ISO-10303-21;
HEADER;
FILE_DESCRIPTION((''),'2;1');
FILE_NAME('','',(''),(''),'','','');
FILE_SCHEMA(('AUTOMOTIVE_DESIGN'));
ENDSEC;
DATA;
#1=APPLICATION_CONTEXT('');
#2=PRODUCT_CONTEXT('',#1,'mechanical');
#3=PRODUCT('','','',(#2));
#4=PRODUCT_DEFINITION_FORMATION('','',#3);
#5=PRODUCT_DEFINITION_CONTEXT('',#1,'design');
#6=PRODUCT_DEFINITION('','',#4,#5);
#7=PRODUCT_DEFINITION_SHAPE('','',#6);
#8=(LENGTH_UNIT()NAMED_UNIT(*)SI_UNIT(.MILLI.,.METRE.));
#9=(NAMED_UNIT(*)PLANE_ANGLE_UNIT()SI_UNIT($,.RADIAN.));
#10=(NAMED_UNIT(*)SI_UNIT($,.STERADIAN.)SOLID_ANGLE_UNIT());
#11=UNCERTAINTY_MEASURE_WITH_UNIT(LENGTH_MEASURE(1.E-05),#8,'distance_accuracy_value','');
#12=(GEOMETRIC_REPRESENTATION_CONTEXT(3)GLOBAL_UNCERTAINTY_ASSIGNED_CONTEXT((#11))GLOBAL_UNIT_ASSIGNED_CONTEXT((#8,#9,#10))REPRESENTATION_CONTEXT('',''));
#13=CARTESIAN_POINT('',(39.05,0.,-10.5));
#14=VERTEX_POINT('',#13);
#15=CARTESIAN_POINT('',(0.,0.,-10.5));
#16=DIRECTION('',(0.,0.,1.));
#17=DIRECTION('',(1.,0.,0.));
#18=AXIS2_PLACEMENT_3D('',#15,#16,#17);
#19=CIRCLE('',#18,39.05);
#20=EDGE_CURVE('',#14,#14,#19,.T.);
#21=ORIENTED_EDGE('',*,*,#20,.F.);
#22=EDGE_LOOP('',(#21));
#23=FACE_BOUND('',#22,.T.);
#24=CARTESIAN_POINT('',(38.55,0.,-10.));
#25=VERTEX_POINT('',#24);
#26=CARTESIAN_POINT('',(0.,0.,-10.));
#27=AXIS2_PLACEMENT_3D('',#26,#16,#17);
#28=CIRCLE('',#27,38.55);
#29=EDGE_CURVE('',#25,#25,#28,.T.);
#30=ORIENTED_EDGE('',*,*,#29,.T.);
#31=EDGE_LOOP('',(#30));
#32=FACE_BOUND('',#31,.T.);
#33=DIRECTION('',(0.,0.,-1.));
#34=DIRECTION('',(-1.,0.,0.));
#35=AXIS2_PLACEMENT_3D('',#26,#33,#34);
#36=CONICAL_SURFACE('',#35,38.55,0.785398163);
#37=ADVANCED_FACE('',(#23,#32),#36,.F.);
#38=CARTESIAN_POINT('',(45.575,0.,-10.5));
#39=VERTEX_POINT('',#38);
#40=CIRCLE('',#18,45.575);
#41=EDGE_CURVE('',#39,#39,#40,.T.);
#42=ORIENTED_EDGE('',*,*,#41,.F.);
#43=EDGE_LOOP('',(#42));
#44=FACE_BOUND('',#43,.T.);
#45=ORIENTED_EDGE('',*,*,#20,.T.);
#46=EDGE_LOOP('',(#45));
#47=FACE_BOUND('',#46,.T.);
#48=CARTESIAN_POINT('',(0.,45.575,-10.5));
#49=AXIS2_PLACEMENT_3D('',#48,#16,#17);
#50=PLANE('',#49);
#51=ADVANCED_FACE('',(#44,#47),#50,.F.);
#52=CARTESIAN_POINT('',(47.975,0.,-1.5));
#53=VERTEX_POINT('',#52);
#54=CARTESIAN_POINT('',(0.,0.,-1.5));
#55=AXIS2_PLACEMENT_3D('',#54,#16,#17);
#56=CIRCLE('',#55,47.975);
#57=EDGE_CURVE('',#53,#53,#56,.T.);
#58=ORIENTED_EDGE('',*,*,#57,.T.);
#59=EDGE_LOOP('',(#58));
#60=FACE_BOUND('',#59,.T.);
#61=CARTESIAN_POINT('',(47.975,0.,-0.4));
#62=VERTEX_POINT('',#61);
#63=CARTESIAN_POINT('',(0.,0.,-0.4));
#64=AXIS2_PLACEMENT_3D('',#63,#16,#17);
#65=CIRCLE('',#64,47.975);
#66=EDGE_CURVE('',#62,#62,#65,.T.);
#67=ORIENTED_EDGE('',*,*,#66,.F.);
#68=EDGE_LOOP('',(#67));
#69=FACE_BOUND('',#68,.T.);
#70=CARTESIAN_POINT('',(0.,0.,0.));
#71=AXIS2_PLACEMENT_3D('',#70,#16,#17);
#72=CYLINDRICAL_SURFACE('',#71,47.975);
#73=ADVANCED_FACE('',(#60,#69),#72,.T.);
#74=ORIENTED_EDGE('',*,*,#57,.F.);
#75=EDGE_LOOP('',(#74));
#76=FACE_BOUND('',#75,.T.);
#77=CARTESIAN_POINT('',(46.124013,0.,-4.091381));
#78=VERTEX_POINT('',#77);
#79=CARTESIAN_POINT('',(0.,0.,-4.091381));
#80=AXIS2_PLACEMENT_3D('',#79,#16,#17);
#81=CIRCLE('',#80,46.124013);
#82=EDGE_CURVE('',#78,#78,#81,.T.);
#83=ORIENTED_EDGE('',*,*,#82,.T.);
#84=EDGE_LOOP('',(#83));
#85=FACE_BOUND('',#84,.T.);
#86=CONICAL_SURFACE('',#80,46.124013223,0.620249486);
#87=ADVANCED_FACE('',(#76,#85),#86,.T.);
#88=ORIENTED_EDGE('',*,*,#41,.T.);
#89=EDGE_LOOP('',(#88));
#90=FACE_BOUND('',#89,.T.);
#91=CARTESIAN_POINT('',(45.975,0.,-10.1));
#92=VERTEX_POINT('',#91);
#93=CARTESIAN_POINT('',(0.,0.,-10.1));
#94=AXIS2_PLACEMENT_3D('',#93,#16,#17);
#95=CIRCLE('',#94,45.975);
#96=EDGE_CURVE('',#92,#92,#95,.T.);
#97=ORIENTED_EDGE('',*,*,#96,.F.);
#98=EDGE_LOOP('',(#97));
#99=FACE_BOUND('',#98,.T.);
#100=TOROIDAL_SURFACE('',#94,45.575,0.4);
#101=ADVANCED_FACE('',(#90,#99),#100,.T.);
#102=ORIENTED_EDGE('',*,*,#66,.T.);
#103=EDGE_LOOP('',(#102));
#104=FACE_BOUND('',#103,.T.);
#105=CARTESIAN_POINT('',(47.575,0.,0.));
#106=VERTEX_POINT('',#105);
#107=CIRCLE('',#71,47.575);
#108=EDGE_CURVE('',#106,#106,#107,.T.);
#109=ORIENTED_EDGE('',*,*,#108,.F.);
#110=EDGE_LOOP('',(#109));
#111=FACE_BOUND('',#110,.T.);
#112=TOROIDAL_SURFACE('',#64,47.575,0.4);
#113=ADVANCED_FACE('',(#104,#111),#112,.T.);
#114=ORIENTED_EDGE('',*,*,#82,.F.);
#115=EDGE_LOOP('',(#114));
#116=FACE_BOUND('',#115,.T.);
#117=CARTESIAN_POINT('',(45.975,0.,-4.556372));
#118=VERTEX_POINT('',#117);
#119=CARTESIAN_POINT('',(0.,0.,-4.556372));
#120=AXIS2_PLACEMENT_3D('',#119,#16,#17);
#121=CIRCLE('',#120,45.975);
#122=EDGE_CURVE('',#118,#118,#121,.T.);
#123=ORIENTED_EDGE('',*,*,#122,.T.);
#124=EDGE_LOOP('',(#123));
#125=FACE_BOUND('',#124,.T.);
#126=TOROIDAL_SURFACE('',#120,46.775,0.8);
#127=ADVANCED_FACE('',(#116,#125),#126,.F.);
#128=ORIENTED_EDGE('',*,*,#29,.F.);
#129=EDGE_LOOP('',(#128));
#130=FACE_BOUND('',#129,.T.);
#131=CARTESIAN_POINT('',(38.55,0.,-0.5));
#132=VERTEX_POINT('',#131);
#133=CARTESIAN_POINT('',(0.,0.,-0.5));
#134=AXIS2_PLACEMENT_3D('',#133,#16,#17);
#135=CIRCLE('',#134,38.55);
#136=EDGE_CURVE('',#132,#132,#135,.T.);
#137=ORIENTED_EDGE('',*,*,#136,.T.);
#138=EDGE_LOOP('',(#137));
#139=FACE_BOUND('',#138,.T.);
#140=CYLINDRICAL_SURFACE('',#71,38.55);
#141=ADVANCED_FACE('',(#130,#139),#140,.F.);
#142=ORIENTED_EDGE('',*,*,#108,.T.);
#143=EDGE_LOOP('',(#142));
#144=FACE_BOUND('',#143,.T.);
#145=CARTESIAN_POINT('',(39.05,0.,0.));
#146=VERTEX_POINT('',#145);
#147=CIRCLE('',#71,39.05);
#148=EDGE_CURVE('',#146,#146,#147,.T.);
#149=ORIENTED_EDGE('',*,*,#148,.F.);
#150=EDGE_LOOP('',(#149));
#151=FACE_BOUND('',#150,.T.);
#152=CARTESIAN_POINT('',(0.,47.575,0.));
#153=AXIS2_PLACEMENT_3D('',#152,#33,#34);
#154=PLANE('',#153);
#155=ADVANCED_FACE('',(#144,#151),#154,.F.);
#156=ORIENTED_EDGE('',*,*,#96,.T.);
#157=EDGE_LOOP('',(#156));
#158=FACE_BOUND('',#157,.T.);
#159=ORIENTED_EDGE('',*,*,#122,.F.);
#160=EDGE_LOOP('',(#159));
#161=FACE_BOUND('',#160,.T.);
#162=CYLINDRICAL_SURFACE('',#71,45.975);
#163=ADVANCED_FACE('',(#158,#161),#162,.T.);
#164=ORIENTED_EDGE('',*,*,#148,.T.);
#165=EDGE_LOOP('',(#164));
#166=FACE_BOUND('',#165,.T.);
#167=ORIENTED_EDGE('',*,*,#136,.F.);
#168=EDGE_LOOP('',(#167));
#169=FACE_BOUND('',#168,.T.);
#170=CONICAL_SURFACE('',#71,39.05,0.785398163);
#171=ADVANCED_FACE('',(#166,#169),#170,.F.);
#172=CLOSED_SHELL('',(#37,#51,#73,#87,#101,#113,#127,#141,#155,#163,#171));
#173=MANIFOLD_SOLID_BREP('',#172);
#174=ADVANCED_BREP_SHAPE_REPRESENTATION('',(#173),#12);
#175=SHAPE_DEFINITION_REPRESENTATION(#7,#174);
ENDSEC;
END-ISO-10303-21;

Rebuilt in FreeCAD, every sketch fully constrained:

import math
import FreeCAD as App
import Part
import Sketcher

V = App.Vector

doc = App.newDocument("Part")
params = doc.addObject("Spreadsheet::Sheet", "Params")
for row, (alias, value) in enumerate([
    ("sketch1_radius", "0.4 mm"),
    ("sketch1_radius2", "0.8 mm"),
    ("sketch1_height", "9.5 mm"),
    ("sketch1_height2", "1.1 mm"),
    ("revolution_angle", "360 deg"),
], start=1):
    params.set(f"A{row}", alias)
    params.set(f"B{row}", "=" + value)
    params.setAlias(f"B{row}", alias)

body = doc.addObject("PartDesign::Body", "Body")

sketch1 = body.newObject("Sketcher::SketchObject", "Sketch")
sketch1.AttachmentSupport = (doc.getObject("YZ_Plane"), [""])
sketch1.MapMode = "FlatFace"
sketch1.addGeometry([
    Part.LineSegment(V(39.05, 0, 0), V(38.55, -0.5, 0)),
    Part.LineSegment(V(38.55, -0.5, 0), V(38.55, -10, 0)),
    Part.LineSegment(V(38.55, -10, 0), V(39.05, -10.5, 0)),
    Part.LineSegment(V(39.05, -10.5, 0), V(45.58, -10.5, 0)),
    Part.ArcOfCircle(Part.Circle(V(45.57, -10.1, 0), V(0, 0, 1), 0.4), math.radians(-90), math.radians(0)),
    Part.LineSegment(V(45.98, -10.1, 0), V(45.98, -4.56, 0)),
    Part.ArcOfCircle(Part.Circle(V(46.77, -4.56, 0), V(0, 0, 1), 0.8), math.radians(144), math.radians(180)),
    Part.LineSegment(V(46.12, -4.09, 0), V(47.98, -1.5, 0)),
    Part.LineSegment(V(47.98, -1.5, 0), V(47.98, -0.4, 0)),
    Part.ArcOfCircle(Part.Circle(V(47.57, -0.4, 0), V(0, 0, 1), 0.4), math.radians(0), math.radians(90)),
    Part.LineSegment(V(47.58, 0, 0), V(39.05, 0, 0)),
], False)
sketch1.addConstraint([
    Sketcher.Constraint("Coincident", 0, 2, 1, 1),
    Sketcher.Constraint("Coincident", 1, 2, 2, 1),
    Sketcher.Constraint("Coincident", 2, 2, 3, 1),
    Sketcher.Constraint("Tangent", 3, 2, 4, 1),
    Sketcher.Constraint("Tangent", 4, 2, 5, 1),
    Sketcher.Constraint("Tangent", 5, 2, 6, 2),
    Sketcher.Constraint("Tangent", 6, 1, 7, 1),
    Sketcher.Constraint("Coincident", 7, 2, 8, 1),
    Sketcher.Constraint("Tangent", 8, 2, 9, 1),
    Sketcher.Constraint("Tangent", 9, 2, 10, 1),
    Sketcher.Constraint("Coincident", 10, 2, 0, 1),
    Sketcher.Constraint("Vertical", 1),
    Sketcher.Constraint("Horizontal", 3),
    Sketcher.Constraint("Vertical", 5),
    Sketcher.Constraint("Vertical", 8),
    Sketcher.Constraint("Horizontal", 10),
    Sketcher.Constraint("Equal", 4, 9),
    Sketcher.Constraint("PointOnObject", 9, 2, -1),
    Sketcher.Constraint("Perpendicular", 0, 2),
    Sketcher.Constraint("Vertical", 2, 2, 10, 2),
    Sketcher.Constraint("Equal", 0, 2),
    Sketcher.Constraint("Radius", 4, 0.4),
    Sketcher.Constraint("Radius", 6, 0.8),
    Sketcher.Constraint("DistanceY", 1, 2, 1, 1, 9.5),
    Sketcher.Constraint("DistanceY", 8, 1, 8, 2, 1.1),
    Sketcher.Constraint("DistanceY", 1, 2, -1, 1, 10.0),
    Sketcher.Constraint("DistanceX", 4, 3, 9, 3, 2.0),
    Sketcher.Constraint("DistanceX", 3, 1, 3, 2, 6.525),
    Sketcher.Constraint("DistanceX", -1, 1, 0, 2, 38.55),
    Sketcher.Constraint("Distance", 7, 3.184558),
])
sketch1.setExpression("Constraints[21]", "Params.sketch1_radius")
sketch1.setExpression("Constraints[22]", "Params.sketch1_radius2")
sketch1.setExpression("Constraints[23]", "Params.sketch1_height")
sketch1.setExpression("Constraints[24]", "Params.sketch1_height2")
revolution = body.newObject("PartDesign::Revolution", "Revolution")
revolution.Profile = sketch1
revolution.ReferenceAxis = (sketch1, ["V_Axis"])
revolution.setExpression("Angle", "Params.revolution_angle")

doc.recompute()
